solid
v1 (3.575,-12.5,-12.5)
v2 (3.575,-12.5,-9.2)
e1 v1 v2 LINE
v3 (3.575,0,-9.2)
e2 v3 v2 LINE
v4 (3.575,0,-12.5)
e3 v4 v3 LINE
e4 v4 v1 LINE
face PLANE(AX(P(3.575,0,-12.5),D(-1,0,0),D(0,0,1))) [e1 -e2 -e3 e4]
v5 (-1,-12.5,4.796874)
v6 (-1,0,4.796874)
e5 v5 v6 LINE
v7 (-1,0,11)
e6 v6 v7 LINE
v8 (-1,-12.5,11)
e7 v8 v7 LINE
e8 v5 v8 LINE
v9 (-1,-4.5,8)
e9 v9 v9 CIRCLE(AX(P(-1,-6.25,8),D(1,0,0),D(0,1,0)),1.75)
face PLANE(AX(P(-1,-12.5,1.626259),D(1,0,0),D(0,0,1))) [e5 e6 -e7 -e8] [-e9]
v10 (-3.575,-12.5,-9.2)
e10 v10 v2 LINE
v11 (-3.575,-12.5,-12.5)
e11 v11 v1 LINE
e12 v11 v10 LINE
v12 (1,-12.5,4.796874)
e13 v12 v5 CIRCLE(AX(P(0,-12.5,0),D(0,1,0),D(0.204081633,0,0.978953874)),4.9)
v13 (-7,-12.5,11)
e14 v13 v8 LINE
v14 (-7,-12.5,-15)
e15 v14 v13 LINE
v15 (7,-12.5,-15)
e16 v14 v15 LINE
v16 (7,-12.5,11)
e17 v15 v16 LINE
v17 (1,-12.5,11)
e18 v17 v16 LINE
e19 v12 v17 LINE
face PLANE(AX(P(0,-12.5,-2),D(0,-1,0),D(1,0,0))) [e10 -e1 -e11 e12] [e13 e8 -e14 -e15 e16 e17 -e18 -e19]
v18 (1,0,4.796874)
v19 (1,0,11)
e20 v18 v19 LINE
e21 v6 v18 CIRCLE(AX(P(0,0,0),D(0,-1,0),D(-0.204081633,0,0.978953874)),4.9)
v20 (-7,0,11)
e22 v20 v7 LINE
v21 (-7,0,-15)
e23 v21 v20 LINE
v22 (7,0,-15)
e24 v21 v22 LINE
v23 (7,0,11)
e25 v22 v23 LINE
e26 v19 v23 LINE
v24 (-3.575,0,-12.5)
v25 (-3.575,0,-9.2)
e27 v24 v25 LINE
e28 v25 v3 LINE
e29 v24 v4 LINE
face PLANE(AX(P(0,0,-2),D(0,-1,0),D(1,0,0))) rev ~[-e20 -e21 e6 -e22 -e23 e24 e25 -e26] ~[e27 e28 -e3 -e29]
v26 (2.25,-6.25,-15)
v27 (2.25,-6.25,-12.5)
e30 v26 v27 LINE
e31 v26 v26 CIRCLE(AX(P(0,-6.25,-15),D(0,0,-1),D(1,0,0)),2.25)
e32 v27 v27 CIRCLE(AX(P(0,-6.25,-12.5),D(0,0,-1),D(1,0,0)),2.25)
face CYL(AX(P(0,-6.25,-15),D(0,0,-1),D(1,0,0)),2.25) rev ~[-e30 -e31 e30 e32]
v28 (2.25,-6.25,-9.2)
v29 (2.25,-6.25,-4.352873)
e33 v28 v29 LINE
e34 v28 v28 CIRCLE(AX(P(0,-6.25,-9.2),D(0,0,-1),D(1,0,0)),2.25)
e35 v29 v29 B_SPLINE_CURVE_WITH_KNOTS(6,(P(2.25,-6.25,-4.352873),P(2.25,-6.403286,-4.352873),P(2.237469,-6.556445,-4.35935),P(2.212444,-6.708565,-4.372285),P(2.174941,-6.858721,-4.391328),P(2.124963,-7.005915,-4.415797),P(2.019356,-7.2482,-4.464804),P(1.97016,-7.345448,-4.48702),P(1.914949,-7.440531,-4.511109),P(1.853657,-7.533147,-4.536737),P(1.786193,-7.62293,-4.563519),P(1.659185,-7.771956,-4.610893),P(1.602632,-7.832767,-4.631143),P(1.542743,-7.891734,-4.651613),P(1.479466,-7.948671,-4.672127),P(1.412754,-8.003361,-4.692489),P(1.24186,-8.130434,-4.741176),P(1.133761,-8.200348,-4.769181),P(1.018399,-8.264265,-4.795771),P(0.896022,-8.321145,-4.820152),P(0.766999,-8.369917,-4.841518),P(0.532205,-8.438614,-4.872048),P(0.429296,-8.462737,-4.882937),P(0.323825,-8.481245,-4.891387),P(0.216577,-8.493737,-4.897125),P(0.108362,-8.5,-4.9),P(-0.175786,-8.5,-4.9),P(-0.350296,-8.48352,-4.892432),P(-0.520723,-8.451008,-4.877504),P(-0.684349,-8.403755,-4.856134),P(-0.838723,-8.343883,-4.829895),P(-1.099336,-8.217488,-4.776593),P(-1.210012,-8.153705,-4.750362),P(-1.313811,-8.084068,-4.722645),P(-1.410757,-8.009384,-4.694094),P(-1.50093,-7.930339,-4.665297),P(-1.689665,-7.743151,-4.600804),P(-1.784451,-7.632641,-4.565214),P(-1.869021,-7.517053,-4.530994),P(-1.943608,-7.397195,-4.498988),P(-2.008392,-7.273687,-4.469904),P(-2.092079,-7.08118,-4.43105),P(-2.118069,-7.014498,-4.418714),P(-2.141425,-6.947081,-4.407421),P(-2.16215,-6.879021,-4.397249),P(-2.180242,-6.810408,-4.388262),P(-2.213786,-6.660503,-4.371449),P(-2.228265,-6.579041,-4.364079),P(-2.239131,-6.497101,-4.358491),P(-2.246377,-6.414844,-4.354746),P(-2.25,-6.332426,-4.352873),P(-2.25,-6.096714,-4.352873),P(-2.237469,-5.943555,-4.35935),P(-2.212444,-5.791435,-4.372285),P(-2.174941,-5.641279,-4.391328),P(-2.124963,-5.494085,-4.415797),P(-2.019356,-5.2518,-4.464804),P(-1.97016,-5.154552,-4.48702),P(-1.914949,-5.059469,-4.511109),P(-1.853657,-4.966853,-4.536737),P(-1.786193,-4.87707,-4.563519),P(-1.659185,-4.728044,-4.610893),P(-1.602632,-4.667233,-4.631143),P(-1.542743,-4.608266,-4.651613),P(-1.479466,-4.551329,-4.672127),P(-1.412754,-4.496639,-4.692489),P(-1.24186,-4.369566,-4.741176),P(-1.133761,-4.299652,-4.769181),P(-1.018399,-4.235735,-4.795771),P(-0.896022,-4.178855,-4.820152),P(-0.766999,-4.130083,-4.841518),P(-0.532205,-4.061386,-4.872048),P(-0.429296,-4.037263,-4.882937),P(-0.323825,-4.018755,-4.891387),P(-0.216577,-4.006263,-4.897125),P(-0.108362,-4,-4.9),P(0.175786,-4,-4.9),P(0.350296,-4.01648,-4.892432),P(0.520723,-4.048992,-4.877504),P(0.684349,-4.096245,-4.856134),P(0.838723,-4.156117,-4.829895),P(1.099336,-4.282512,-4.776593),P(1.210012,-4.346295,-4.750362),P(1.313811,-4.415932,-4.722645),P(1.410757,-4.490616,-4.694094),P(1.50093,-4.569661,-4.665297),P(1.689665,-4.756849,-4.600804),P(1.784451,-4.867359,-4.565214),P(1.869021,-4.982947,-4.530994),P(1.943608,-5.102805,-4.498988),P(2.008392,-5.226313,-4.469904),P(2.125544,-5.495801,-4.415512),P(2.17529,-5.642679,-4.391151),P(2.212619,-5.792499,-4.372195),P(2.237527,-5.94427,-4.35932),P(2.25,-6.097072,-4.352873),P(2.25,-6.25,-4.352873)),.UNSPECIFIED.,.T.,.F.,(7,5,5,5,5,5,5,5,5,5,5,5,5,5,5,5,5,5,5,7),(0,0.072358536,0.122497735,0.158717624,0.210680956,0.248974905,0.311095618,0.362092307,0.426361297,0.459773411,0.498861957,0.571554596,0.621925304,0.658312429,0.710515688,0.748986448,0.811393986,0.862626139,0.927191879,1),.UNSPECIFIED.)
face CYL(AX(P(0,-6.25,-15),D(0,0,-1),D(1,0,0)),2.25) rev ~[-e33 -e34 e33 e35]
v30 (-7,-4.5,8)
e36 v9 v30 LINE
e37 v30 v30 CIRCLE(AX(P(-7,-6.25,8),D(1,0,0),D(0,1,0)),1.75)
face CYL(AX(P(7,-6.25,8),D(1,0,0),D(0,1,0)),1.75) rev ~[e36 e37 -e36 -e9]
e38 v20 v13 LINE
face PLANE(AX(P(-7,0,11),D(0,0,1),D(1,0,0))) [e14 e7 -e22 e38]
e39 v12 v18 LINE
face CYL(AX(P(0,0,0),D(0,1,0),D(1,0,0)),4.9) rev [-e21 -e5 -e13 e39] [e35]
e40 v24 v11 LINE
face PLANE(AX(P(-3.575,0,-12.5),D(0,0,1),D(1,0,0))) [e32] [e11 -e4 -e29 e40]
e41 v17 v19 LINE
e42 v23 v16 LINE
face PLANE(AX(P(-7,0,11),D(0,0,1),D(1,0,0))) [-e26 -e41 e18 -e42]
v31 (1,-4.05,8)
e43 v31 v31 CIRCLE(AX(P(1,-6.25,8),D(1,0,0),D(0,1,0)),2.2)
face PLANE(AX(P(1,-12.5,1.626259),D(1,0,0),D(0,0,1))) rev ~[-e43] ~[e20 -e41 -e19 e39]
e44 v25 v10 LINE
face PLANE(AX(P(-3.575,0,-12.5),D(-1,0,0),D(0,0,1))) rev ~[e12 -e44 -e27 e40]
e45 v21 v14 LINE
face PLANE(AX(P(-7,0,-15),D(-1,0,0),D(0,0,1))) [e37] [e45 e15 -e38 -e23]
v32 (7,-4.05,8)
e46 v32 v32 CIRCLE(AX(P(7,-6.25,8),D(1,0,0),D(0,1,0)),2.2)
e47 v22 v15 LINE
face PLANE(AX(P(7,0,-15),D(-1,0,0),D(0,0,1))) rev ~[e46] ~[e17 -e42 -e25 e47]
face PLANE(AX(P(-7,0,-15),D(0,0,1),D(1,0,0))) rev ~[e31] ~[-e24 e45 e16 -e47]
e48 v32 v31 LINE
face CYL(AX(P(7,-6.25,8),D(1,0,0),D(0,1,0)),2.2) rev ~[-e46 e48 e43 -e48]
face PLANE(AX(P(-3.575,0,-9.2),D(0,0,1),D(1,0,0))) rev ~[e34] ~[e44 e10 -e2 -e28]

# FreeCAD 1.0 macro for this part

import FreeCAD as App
import Part
import Sketcher
from FreeCAD import Vector

doc = App.newDocument("Part")
params = doc.addObject("Spreadsheet::Sheet", "Params")
for row, (alias, value) in enumerate([
    ("sketch1_diameter", "9.8 mm"),
    ("sketch1_width", "14 mm"),
    ("sketch1_height", "26 mm"),
    ("sketch1_height2", "3.3 mm"),
    ("sketch1_width2", "7.15 mm"),
    ("pad1_length", "12.5 mm"),
    ("sketch2_diameter", "4.5 mm"),
    ("pocket1_length", "15 mm"),
    ("sketch3_width", "2 mm"),
    ("sketch4_diameter", "3.5 mm"),
    ("sketch5_diameter", "4.4 mm"),
    ("pocket4_length", "6 mm"),
], start=1):
    params.set(f"A{row}", alias)
    params.set(f"B{row}", "=" + value)
    params.setAlias(f"B{row}", alias)

body = doc.addObject("PartDesign::Body", "Body")

sketch1 = doc.addObject("Sketcher::SketchObject", "Sketch")
body.addObject(sketch1)
sketch1.AttachmentSupport = (doc.XZ_Plane, [""])
sketch1.MapMode = "FlatFace"
sketch1.addGeometry([
    Part.LineSegment(Vector(-7, 11, 0), Vector(-7, -15, 0)),
    Part.LineSegment(Vector(-7, -15, 0), Vector(7, -15, 0)),
    Part.LineSegment(Vector(7, -15, 0), Vector(7, 11, 0)),
    Part.LineSegment(Vector(7, 11, 0), Vector(-7, 11, 0)),
    Part.LineSegment(Vector(3.6, -12.5, 0), Vector(-3.6, -12.5, 0)),
    Part.LineSegment(Vector(-3.6, -12.5, 0), Vector(-3.6, -9.2, 0)),
    Part.LineSegment(Vector(-3.6, -9.2, 0), Vector(3.6, -9.2, 0)),
    Part.LineSegment(Vector(3.6, -9.2, 0), Vector(3.6, -12.5, 0)),
    Part.Circle(Vector(0, 0, 0), Vector(0, 0, 1), 4.9),
], False)
sketch1.addConstraint([
    Sketcher.Constraint("Coincident", 0, 2, 1, 1),
    Sketcher.Constraint("Coincident", 1, 2, 2, 1),
    Sketcher.Constraint("Coincident", 2, 2, 3, 1),
    Sketcher.Constraint("Coincident", 3, 2, 0, 1),
    Sketcher.Constraint("Coincident", 4, 2, 5, 1),
    Sketcher.Constraint("Coincident", 5, 2, 6, 1),
    Sketcher.Constraint("Coincident", 6, 2, 7, 1),
    Sketcher.Constraint("Coincident", 7, 2, 4, 1),
    Sketcher.Constraint("Vertical", 0),
    Sketcher.Constraint("Horizontal", 1),
    Sketcher.Constraint("Vertical", 2),
    Sketcher.Constraint("Horizontal", 3),
    Sketcher.Constraint("Horizontal", 4),
    Sketcher.Constraint("Vertical", 5),
    Sketcher.Constraint("Horizontal", 6),
    Sketcher.Constraint("Vertical", 7),
    Sketcher.Constraint("Coincident", 8, 3, -1, 1),
    Sketcher.Constraint("Diameter", 8, 9.8),
    Sketcher.Constraint("DistanceX", 1, 1, 1, 2, 14.0),
    Sketcher.Constraint("DistanceY", 0, 2, 0, 1, 26.0),
    Sketcher.Constraint("DistanceY", 5, 1, 5, 2, 3.3),
    Sketcher.Constraint("DistanceX", 0, 2, -1, 1, 7.0),
    Sketcher.Constraint("DistanceY", 0, 2, -1, 1, 15.0),
    Sketcher.Constraint("DistanceX", 4, 2, 4, 1, 7.15),
    Sketcher.Constraint("DistanceY", 4, 2, -1, 1, 12.5),
    Sketcher.Constraint("DistanceX", 4, 2, -1, 1, 3.575),
])
sketch1.setExpression("Constraints[17]", "Params.sketch1_diameter")
sketch1.setExpression("Constraints[18]", "Params.sketch1_width")
sketch1.setExpression("Constraints[19]", "Params.sketch1_height")
sketch1.setExpression("Constraints[20]", "Params.sketch1_height2")
sketch1.setExpression("Constraints[23]", "Params.sketch1_width2")
pad1 = doc.addObject("PartDesign::Pad", "Pad")
body.addObject(pad1)
pad1.Profile = sketch1
pad1.setExpression("Length", "Params.pad1_length")

sketch2 = doc.addObject("Sketcher::SketchObject", "Sketch001")
body.addObject(sketch2)
sketch2.AttachmentSupport = (doc.XY_Plane, [""])
sketch2.MapMode = "FlatFace"
sketch2.AttachmentOffset = App.Placement(Vector(0, 0, -15), App.Rotation())
sketch2.addGeometry(Part.Circle(Vector(0, -6.2, 0), Vector(0, 0, 1), 2.2), False)
sketch2.addConstraint([
    Sketcher.Constraint("PointOnObject", 0, 3, -2),
    Sketcher.Constraint("Diameter", 0, 4.5),
    Sketcher.Constraint("DistanceY", 0, 3, -1, 1, 6.25),
])
sketch2.setExpression("Constraints[1]", "Params.sketch2_diameter")
pocket1 = doc.addObject("PartDesign::Pocket", "Pocket")
body.addObject(pocket1)
pocket1.Profile = sketch2
pocket1.setExpression("Length", "Params.pocket1_length")
pocket1.Reversed = True

sketch3 = doc.addObject("Sketcher::SketchObject", "Sketch002")
body.addObject(sketch3)
sketch3.AttachmentSupport = (doc.XZ_Plane, [""])
sketch3.MapMode = "FlatFace"
sketch3.AttachmentOffset = App.Placement(Vector(0, 0, 12.5), App.Rotation())
sketch3.addGeometry([
    Part.LineSegment(Vector(-1, 11, 0), Vector(-1, 1.6, 0)),
    Part.LineSegment(Vector(-1, 1.6, 0), Vector(1, 1.6, 0)),
    Part.LineSegment(Vector(1, 1.6, 0), Vector(1, 11, 0)),
    Part.LineSegment(Vector(1, 11, 0), Vector(-1, 11, 0)),
], False)
sketch3.addConstraint([
    Sketcher.Constraint("Coincident", 0, 2, 1, 1),
    Sketcher.Constraint("Coincident", 1, 2, 2, 1),
    Sketcher.Constraint("Coincident", 2, 2, 3, 1),
    Sketcher.Constraint("Coincident", 3, 2, 0, 1),
    Sketcher.Constraint("Vertical", 0),
    Sketcher.Constraint("Horizontal", 1),
    Sketcher.Constraint("Vertical", 2),
    Sketcher.Constraint("Horizontal", 3),
    Sketcher.Constraint("DistanceX", 1, 1, 1, 2, 2.0),
    Sketcher.Constraint("DistanceX", 0, 2, -1, 1, 1.0),
    Sketcher.Constraint("DistanceY", -1, 1, 2, 2, 11.0),
    Sketcher.Constraint("DistanceY", 0, 2, 0, 1, 9.373741),
])
sketch3.setExpression("Constraints[8]", "Params.sketch3_width")
pocket2 = doc.addObject("PartDesign::Pocket", "Pocket001")
body.addObject(pocket2)
pocket2.Profile = sketch3
pocket2.Type = "ThroughAll"

sketch4 = doc.addObject("Sketcher::SketchObject", "Sketch003")
body.addObject(sketch4)
sketch4.AttachmentSupport = (doc.YZ_Plane, [""])
sketch4.MapMode = "FlatFace"
sketch4.AttachmentOffset = App.Placement(Vector(0, 0, 7), App.Rotation())
sketch4.addGeometry(Part.Circle(Vector(-6.2, 8, 0), Vector(0, 0, 1), 1.8), False)
sketch4.addConstraint([
    Sketcher.Constraint("Diameter", 0, 3.5),
    Sketcher.Constraint("DistanceY", -1, 1, 0, 3, 8.0),
    Sketcher.Constraint("DistanceX", 0, 3, -1, 1, 6.25),
])
sketch4.setExpression("Constraints[0]", "Params.sketch4_diameter")
pocket3 = doc.addObject("PartDesign::Pocket", "Pocket002")
body.addObject(pocket3)
pocket3.Profile = sketch4
pocket3.Type = "ThroughAll"

sketch5 = doc.addObject("Sketcher::SketchObject", "Sketch004")
body.addObject(sketch5)
sketch5.AttachmentSupport = (doc.YZ_Plane, [""])
sketch5.MapMode = "FlatFace"
sketch5.AttachmentOffset = App.Placement(Vector(0, 0, 7), App.Rotation())
sketch5.addGeometry(Part.Circle(Vector(-6.2, 8, 0), Vector(0, 0, 1), 2.2), False)
sketch5.addConstraint([
    Sketcher.Constraint("Diameter", 0, 4.4),
    Sketcher.Constraint("DistanceY", -1, 1, 0, 3, 8.0),
    Sketcher.Constraint("DistanceX", 0, 3, -1, 1, 6.25),
])
sketch5.setExpression("Constraints[0]", "Params.sketch5_diameter")
pocket4 = doc.addObject("PartDesign::Pocket", "Pocket003")
body.addObject(pocket4)
pocket4.Profile = sketch5
pocket4.setExpression("Length", "Params.pocket4_length")

doc.recompute()
